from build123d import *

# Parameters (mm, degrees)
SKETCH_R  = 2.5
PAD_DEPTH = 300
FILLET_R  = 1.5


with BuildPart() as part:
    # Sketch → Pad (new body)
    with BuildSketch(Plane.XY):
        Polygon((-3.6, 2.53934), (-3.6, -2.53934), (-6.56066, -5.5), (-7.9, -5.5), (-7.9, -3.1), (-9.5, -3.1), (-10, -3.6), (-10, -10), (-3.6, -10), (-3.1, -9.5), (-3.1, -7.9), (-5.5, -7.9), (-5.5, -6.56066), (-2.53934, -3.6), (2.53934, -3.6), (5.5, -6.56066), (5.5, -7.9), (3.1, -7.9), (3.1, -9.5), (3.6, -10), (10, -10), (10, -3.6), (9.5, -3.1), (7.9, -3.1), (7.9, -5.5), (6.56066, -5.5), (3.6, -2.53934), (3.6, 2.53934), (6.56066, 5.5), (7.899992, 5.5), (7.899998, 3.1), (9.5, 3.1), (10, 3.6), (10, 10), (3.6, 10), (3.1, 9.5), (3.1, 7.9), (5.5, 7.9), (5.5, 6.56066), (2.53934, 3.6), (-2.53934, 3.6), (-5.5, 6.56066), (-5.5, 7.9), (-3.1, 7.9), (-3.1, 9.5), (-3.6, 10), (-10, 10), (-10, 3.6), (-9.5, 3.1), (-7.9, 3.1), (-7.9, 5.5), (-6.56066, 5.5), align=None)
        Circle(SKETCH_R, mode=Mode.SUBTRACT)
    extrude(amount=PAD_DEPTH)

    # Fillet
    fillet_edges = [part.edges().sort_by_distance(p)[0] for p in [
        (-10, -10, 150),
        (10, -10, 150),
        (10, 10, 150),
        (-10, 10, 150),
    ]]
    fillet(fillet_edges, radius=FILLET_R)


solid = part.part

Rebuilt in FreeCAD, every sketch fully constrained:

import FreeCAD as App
import Part
import Sketcher

V = App.Vector


def edges_at(feature, points):
    """Names of the edges that pass closest to the given points."""
    edges = feature.Shape.Edges
    near = lambda p: min(range(len(edges)), key=lambda i: edges[i].distToShape(Part.Vertex(*p))[0])
    return sorted({f"Edge{near(p) + 1}" for p in points})

doc = App.newDocument("Part")
body = doc.addObject("PartDesign::Body", "Body")

sketch1 = body.newObject("Sketcher::SketchObject", "Sketch")
sketch1.AttachmentSupport = (doc.getObject("XY_Plane"), [""])
sketch1.MapMode = "FlatFace"
sketch1.addGeometry([
    Part.LineSegment(V(-3.6, 2.53934, 0), V(-3.6, -2.53934, 0)),
    Part.LineSegment(V(-3.6, -2.53934, 0), V(-6.56066, -5.5, 0)),
    Part.LineSegment(V(-6.56066, -5.5, 0), V(-7.9, -5.5, 0)),
    Part.LineSegment(V(-7.9, -5.5, 0), V(-7.9, -3.1, 0)),
    Part.LineSegment(V(-7.9, -3.1, 0), V(-9.5, -3.1, 0)),
    Part.LineSegment(V(-9.5, -3.1, 0), V(-10, -3.6, 0)),
    Part.LineSegment(V(-10, -3.6, 0), V(-10, -10, 0)),
    Part.LineSegment(V(-10, -10, 0), V(-3.6, -10, 0)),
    Part.LineSegment(V(-3.6, -10, 0), V(-3.1, -9.5, 0)),
    Part.LineSegment(V(-3.1, -9.5, 0), V(-3.1, -7.9, 0)),
    Part.LineSegment(V(-3.1, -7.9, 0), V(-5.5, -7.9, 0)),
    Part.LineSegment(V(-5.5, -7.9, 0), V(-5.5, -6.56066, 0)),
    Part.LineSegment(V(-5.5, -6.56066, 0), V(-2.53934, -3.6, 0)),
    Part.LineSegment(V(-2.53934, -3.6, 0), V(2.53934, -3.6, 0)),
    Part.LineSegment(V(2.53934, -3.6, 0), V(5.5, -6.56066, 0)),
    Part.LineSegment(V(5.5, -6.56066, 0), V(5.5, -7.9, 0)),
    Part.LineSegment(V(5.5, -7.9, 0), V(3.1, -7.9, 0)),
    Part.LineSegment(V(3.1, -7.9, 0), V(3.1, -9.5, 0)),
    Part.LineSegment(V(3.1, -9.5, 0), V(3.6, -10, 0)),
    Part.LineSegment(V(3.6, -10, 0), V(10, -10, 0)),
    Part.LineSegment(V(10, -10, 0), V(10, -3.6, 0)),
    Part.LineSegment(V(10, -3.6, 0), V(9.5, -3.1, 0)),
    Part.LineSegment(V(9.5, -3.1, 0), V(7.9, -3.1, 0)),
    Part.LineSegment(V(7.9, -3.1, 0), V(7.9, -5.5, 0)),
    Part.LineSegment(V(7.9, -5.5, 0), V(6.56066, -5.5, 0)),
    Part.LineSegment(V(6.56066, -5.5, 0), V(3.6, -2.53934, 0)),
    Part.LineSegment(V(3.6, -2.53934, 0), V(3.6, 2.53934, 0)),
    Part.LineSegment(V(3.6, 2.53934, 0), V(6.56066, 5.5, 0)),
    Part.LineSegment(V(6.56066, 5.5, 0), V(7.899992, 5.5, 0)),
    Part.LineSegment(V(7.899992, 5.5, 0), V(7.899998, 3.1, 0)),
    Part.LineSegment(V(7.899998, 3.1, 0), V(9.5, 3.1, 0)),
    Part.LineSegment(V(9.5, 3.1, 0), V(10, 3.6, 0)),
    Part.LineSegment(V(10, 3.6, 0), V(10, 10, 0)),
    Part.LineSegment(V(10, 10, 0), V(3.6, 10, 0)),
    Part.LineSegment(V(3.6, 10, 0), V(3.1, 9.5, 0)),
    Part.LineSegment(V(3.1, 9.5, 0), V(3.1, 7.9, 0)),
    Part.LineSegment(V(3.1, 7.9, 0), V(5.5, 7.9, 0)),
    Part.LineSegment(V(5.5, 7.9, 0), V(5.5, 6.56066, 0)),
    Part.LineSegment(V(5.5, 6.56066, 0), V(2.53934, 3.6, 0)),
    Part.LineSegment(V(2.53934, 3.6, 0), V(-2.53934, 3.6, 0)),
    Part.LineSegment(V(-2.53934, 3.6, 0), V(-5.5, 6.56066, 0)),
    Part.LineSegment(V(-5.5, 6.56066, 0), V(-5.5, 7.9, 0)),
    Part.LineSegment(V(-5.5, 7.9, 0), V(-3.1, 7.9, 0)),
    Part.LineSegment(V(-3.1, 7.9, 0), V(-3.1, 9.5, 0)),
    Part.LineSegment(V(-3.1, 9.5, 0), V(-3.6, 10, 0)),
    Part.LineSegment(V(-3.6, 10, 0), V(-10, 10, 0)),
    Part.LineSegment(V(-10, 10, 0), V(-10, 3.6, 0)),
    Part.LineSegment(V(-10, 3.6, 0), V(-9.5, 3.1, 0)),
    Part.LineSegment(V(-9.5, 3.1, 0), V(-7.9, 3.1, 0)),
    Part.LineSegment(V(-7.9, 3.1, 0), V(-7.9, 5.5, 0)),
    Part.LineSegment(V(-7.9, 5.5, 0), V(-6.56066, 5.5, 0)),
    Part.LineSegment(V(-6.56066, 5.5, 0), V(-3.6, 2.53934, 0)),
    Part.Circle(V(0, 0, 0), V(0, 0, 1), 2.5),
], False)
sketch1.addConstraint([
    Sketcher.Constraint("Coincident", 0, 2, 1, 1),
    Sketcher.Constraint("Coincident", 1, 2, 2, 1),
    Sketcher.Constraint("Coincident", 2, 2, 3, 1),
    Sketcher.Constraint("Coincident", 3, 2, 4, 1),
    Sketcher.Constraint("Coincident", 4, 2, 5, 1),
    Sketcher.Constraint("Coincident", 5, 2, 6, 1),
    Sketcher.Constraint("Coincident", 6, 2, 7, 1),
    Sketcher.Constraint("Coincident", 7, 2, 8, 1),
    Sketcher.Constraint("Coincident", 8, 2, 9, 1),
    Sketcher.Constraint("Coincident", 9, 2, 10, 1),
    Sketcher.Constraint("Coincident", 10, 2, 11, 1),
    Sketcher.Constraint("Coincident", 11, 2, 12, 1),
    Sketcher.Constraint("Coincident", 12, 2, 13, 1),
    Sketcher.Constraint("Coincident", 13, 2, 14, 1),
    Sketcher.Constraint("Coincident", 14, 2, 15, 1),
    Sketcher.Constraint("Coincident", 15, 2, 16, 1),
    Sketcher.Constraint("Coincident", 16, 2, 17, 1),
    Sketcher.Constraint("Coincident", 17, 2, 18, 1),
    Sketcher.Constraint("Coincident", 18, 2, 19, 1),
    Sketcher.Constraint("Coincident", 19, 2, 20, 1),
    Sketcher.Constraint("Coincident", 20, 2, 21, 1),
    Sketcher.Constraint("Coincident", 21, 2, 22, 1),
    Sketcher.Constraint("Coincident", 22, 2, 23, 1),
    Sketcher.Constraint("Coincident", 23, 2, 24, 1),
    Sketcher.Constraint("Coincident", 24, 2, 25, 1),
    Sketcher.Constraint("Coincident", 25, 2, 26, 1),
    Sketcher.Constraint("Coincident", 26, 2, 27, 1),
    Sketcher.Constraint("Coincident", 27, 2, 28, 1),
    Sketcher.Constraint("Coincident", 28, 2, 29, 1),
    Sketcher.Constraint("Coincident", 29, 2, 30, 1),
    Sketcher.Constraint("Coincident", 30, 2, 31, 1),
    Sketcher.Constraint("Coincident", 31, 2, 32, 1),
    Sketcher.Constraint("Coincident", 32, 2, 33, 1),
    Sketcher.Constraint("Coincident", 33, 2, 34, 1),
    Sketcher.Constraint("Coincident", 34, 2, 35, 1),
    Sketcher.Constraint("Coincident", 35, 2, 36, 1),
    Sketcher.Constraint("Coincident", 36, 2, 37, 1),
    Sketcher.Constraint("Coincident", 37, 2, 38, 1),
    Sketcher.Constraint("Coincident", 38, 2, 39, 1),
    Sketcher.Constraint("Coincident", 39, 2, 40, 1),
    Sketcher.Constraint("Coincident", 40, 2, 41, 1),
    Sketcher.Constraint("Coincident", 41, 2, 42, 1),
    Sketcher.Constraint("Coincident", 42, 2, 43, 1),
    Sketcher.Constraint("Coincident", 43, 2, 44, 1),
    Sketcher.Constraint("Coincident", 44, 2, 45, 1),
    Sketcher.Constraint("Coincident", 45, 2, 46, 1),
    Sketcher.Constraint("Coincident", 46, 2, 47, 1),
    Sketcher.Constraint("Coincident", 47, 2, 48, 1),
    Sketcher.Constraint("Coincident", 48, 2, 49, 1),
    Sketcher.Constraint("Coincident", 49, 2, 50, 1),
    Sketcher.Constraint("Coincident", 50, 2, 51, 1),
    Sketcher.Constraint("Coincident", 51, 2, 0, 1),
    Sketcher.Constraint("Vertical", 0),
    Sketcher.Constraint("Horizontal", 2),
    Sketcher.Constraint("Vertical", 3),
    Sketcher.Constraint("Horizontal", 4),
    Sketcher.Constraint("Vertical", 6),
    Sketcher.Constraint("Horizontal", 7),
    Sketcher.Constraint("Vertical", 9),
    Sketcher.Constraint("Horizontal", 10),
    Sketcher.Constraint("Vertical", 11),
    Sketcher.Constraint("Horizontal", 13),
    Sketcher.Constraint("Vertical", 15),
    Sketcher.Constraint("Horizontal", 16),
    Sketcher.Constraint("Vertical", 17),
    Sketcher.Constraint("Horizontal", 19),
    Sketcher.Constraint("Vertical", 20),
    Sketcher.Constraint("Horizontal", 22),
    Sketcher.Constraint("Vertical", 23),
    Sketcher.Constraint("Horizontal", 24),
    Sketcher.Constraint("Vertical", 26),
    Sketcher.Constraint("Horizontal", 28),
    Sketcher.Constraint("Horizontal", 30),
    Sketcher.Constraint("Vertical", 32),
    Sketcher.Constraint("Horizontal", 33),
    Sketcher.Constraint("Vertical", 35),
    Sketcher.Constraint("Horizontal", 36),
    Sketcher.Constraint("Vertical", 37),
    Sketcher.Constraint("Horizontal", 39),
    Sketcher.Constraint("Vertical", 41),
    Sketcher.Constraint("Horizontal", 42),
    Sketcher.Constraint("Vertical", 43),
    Sketcher.Constraint("Horizontal", 45),
    Sketcher.Constraint("Vertical", 46),
    Sketcher.Constraint("Horizontal", 48),
    Sketcher.Constraint("Vertical", 49),
    Sketcher.Constraint("Horizontal", 50),
    Sketcher.Constraint("Coincident", 52, 3, -1, 1),
    Sketcher.Constraint("Symmetric", 0, 2, 26, 2, -1, 1),
    Sketcher.Constraint("Symmetric", 1, 2, 27, 2, -1, 1),
    Sketcher.Constraint("Symmetric", 3, 2, 29, 2, -1, 1),
    Sketcher.Constraint("Symmetric", 5, 2, 31, 2, -1, 1),
    Sketcher.Constraint("Symmetric", 7, 2, 33, 2, -1, 1),
    Sketcher.Constraint("Symmetric", 8, 2, 34, 2, -1, 1),
    Sketcher.Constraint("Symmetric", 10, 2, 36, 2, -1, 1),
    Sketcher.Constraint("Symmetric", 12, 2, 38, 2, -1, 1),
    Sketcher.Constraint("Symmetric", 14, 2, 40, 2, -1, 1),
    Sketcher.Constraint("Symmetric", 16, 2, 42, 2, -1, 1),
    Sketcher.Constraint("Symmetric", 18, 2, 44, 2, -1, 1),
    Sketcher.Constraint("Symmetric", 20, 2, 46, 2, -1, 1),
    Sketcher.Constraint("Symmetric", 21, 2, 47, 2, -1, 1),
    Sketcher.Constraint("Symmetric", 23, 2, 49, 2, -1, 1),
    Sketcher.Constraint("Symmetric", 11, 2, 14, 2, -2),
    Sketcher.Constraint("Symmetric", 9, 2, 16, 2, -2),
    Sketcher.Constraint("Symmetric", 7, 2, 18, 2, -2),
    Sketcher.Constraint("Symmetric", 5, 2, 20, 2, -2),
    Sketcher.Constraint("Symmetric", 4, 2, 21, 2, -2),
    Sketcher.Constraint("Symmetric", 2, 2, 23, 2, -2),
    Sketcher.Constraint("Parallel", 1, 5),
    Sketcher.Constraint("Parallel", 5, 8),
    Sketcher.Constraint("Parallel", 8, 12),
    Sketcher.Constraint("Perpendicular", 12, 14),
    Sketcher.Constraint("Parallel", 14, 18),
    Sketcher.Constraint("Parallel", 18, 21),
    Sketcher.Constraint("Parallel", 21, 25),
    Sketcher.Constraint("Parallel", 27, 31),
    Sketcher.Constraint("Parallel", 34, 38),
    Sketcher.Constraint("Perpendicular", 38, 40),
    Sketcher.Constraint("Parallel", 40, 44),
    Sketcher.Constraint("Parallel", 47, 51),
    Sketcher.Constraint("Horizontal", 5, 2, 12, 2),
    Sketcher.Constraint("Horizontal", 0, 2, 25, 2),
    Sketcher.Constraint("Horizontal", 26, 2, 51, 2),
    Sketcher.Constraint("Vertical", 0, 2, 7, 2),
    Sketcher.Constraint("Equal", 39, 0),
    Sketcher.Constraint("Equal", 42, 3),
    Sketcher.Constraint("Equal", 45, 6),
    Sketcher.Constraint("Equal", 48, 9),
    Sketcher.Constraint("Equal", 50, 11),
    Sketcher.Constraint("Equal", 5, 8),
    Sketcher.Constraint("Diameter", 52, 5.0),
    Sketcher.Constraint("DistanceX", 4, 2, 4, 1, 1.6),
    Sketcher.Constraint("DistanceX", 7, 1, 7, 2, 6.4),
    Sketcher.Constraint("DistanceX", 10, 2, 10, 1, 2.4),
    Sketcher.Constraint("DistanceX", 5, 2, -1, 1, 10.0),
    Sketcher.Constraint("DistanceY", 1, 2, -1, 1, 5.5),
    Sketcher.Constraint("DistanceX", 2, 2, 2, 1, 1.33934),
    Sketcher.Constraint("DistanceX", 28, 1, 28, 2, 1.339332),
])
pad1 = body.newObject("PartDesign::Pad", "Pad")
pad1.Profile = sketch1
pad1.Length = 300
doc.recompute()

fillet = body.newObject("PartDesign::Fillet", "Fillet")
fillet.Base = (pad1, edges_at(pad1, [
    (-10, -10, 150),
    (10, -10, 150),
    (10, 10, 150),
    (-10, 10, 150),
]))
fillet.Radius = 1.5

doc.recompute()
